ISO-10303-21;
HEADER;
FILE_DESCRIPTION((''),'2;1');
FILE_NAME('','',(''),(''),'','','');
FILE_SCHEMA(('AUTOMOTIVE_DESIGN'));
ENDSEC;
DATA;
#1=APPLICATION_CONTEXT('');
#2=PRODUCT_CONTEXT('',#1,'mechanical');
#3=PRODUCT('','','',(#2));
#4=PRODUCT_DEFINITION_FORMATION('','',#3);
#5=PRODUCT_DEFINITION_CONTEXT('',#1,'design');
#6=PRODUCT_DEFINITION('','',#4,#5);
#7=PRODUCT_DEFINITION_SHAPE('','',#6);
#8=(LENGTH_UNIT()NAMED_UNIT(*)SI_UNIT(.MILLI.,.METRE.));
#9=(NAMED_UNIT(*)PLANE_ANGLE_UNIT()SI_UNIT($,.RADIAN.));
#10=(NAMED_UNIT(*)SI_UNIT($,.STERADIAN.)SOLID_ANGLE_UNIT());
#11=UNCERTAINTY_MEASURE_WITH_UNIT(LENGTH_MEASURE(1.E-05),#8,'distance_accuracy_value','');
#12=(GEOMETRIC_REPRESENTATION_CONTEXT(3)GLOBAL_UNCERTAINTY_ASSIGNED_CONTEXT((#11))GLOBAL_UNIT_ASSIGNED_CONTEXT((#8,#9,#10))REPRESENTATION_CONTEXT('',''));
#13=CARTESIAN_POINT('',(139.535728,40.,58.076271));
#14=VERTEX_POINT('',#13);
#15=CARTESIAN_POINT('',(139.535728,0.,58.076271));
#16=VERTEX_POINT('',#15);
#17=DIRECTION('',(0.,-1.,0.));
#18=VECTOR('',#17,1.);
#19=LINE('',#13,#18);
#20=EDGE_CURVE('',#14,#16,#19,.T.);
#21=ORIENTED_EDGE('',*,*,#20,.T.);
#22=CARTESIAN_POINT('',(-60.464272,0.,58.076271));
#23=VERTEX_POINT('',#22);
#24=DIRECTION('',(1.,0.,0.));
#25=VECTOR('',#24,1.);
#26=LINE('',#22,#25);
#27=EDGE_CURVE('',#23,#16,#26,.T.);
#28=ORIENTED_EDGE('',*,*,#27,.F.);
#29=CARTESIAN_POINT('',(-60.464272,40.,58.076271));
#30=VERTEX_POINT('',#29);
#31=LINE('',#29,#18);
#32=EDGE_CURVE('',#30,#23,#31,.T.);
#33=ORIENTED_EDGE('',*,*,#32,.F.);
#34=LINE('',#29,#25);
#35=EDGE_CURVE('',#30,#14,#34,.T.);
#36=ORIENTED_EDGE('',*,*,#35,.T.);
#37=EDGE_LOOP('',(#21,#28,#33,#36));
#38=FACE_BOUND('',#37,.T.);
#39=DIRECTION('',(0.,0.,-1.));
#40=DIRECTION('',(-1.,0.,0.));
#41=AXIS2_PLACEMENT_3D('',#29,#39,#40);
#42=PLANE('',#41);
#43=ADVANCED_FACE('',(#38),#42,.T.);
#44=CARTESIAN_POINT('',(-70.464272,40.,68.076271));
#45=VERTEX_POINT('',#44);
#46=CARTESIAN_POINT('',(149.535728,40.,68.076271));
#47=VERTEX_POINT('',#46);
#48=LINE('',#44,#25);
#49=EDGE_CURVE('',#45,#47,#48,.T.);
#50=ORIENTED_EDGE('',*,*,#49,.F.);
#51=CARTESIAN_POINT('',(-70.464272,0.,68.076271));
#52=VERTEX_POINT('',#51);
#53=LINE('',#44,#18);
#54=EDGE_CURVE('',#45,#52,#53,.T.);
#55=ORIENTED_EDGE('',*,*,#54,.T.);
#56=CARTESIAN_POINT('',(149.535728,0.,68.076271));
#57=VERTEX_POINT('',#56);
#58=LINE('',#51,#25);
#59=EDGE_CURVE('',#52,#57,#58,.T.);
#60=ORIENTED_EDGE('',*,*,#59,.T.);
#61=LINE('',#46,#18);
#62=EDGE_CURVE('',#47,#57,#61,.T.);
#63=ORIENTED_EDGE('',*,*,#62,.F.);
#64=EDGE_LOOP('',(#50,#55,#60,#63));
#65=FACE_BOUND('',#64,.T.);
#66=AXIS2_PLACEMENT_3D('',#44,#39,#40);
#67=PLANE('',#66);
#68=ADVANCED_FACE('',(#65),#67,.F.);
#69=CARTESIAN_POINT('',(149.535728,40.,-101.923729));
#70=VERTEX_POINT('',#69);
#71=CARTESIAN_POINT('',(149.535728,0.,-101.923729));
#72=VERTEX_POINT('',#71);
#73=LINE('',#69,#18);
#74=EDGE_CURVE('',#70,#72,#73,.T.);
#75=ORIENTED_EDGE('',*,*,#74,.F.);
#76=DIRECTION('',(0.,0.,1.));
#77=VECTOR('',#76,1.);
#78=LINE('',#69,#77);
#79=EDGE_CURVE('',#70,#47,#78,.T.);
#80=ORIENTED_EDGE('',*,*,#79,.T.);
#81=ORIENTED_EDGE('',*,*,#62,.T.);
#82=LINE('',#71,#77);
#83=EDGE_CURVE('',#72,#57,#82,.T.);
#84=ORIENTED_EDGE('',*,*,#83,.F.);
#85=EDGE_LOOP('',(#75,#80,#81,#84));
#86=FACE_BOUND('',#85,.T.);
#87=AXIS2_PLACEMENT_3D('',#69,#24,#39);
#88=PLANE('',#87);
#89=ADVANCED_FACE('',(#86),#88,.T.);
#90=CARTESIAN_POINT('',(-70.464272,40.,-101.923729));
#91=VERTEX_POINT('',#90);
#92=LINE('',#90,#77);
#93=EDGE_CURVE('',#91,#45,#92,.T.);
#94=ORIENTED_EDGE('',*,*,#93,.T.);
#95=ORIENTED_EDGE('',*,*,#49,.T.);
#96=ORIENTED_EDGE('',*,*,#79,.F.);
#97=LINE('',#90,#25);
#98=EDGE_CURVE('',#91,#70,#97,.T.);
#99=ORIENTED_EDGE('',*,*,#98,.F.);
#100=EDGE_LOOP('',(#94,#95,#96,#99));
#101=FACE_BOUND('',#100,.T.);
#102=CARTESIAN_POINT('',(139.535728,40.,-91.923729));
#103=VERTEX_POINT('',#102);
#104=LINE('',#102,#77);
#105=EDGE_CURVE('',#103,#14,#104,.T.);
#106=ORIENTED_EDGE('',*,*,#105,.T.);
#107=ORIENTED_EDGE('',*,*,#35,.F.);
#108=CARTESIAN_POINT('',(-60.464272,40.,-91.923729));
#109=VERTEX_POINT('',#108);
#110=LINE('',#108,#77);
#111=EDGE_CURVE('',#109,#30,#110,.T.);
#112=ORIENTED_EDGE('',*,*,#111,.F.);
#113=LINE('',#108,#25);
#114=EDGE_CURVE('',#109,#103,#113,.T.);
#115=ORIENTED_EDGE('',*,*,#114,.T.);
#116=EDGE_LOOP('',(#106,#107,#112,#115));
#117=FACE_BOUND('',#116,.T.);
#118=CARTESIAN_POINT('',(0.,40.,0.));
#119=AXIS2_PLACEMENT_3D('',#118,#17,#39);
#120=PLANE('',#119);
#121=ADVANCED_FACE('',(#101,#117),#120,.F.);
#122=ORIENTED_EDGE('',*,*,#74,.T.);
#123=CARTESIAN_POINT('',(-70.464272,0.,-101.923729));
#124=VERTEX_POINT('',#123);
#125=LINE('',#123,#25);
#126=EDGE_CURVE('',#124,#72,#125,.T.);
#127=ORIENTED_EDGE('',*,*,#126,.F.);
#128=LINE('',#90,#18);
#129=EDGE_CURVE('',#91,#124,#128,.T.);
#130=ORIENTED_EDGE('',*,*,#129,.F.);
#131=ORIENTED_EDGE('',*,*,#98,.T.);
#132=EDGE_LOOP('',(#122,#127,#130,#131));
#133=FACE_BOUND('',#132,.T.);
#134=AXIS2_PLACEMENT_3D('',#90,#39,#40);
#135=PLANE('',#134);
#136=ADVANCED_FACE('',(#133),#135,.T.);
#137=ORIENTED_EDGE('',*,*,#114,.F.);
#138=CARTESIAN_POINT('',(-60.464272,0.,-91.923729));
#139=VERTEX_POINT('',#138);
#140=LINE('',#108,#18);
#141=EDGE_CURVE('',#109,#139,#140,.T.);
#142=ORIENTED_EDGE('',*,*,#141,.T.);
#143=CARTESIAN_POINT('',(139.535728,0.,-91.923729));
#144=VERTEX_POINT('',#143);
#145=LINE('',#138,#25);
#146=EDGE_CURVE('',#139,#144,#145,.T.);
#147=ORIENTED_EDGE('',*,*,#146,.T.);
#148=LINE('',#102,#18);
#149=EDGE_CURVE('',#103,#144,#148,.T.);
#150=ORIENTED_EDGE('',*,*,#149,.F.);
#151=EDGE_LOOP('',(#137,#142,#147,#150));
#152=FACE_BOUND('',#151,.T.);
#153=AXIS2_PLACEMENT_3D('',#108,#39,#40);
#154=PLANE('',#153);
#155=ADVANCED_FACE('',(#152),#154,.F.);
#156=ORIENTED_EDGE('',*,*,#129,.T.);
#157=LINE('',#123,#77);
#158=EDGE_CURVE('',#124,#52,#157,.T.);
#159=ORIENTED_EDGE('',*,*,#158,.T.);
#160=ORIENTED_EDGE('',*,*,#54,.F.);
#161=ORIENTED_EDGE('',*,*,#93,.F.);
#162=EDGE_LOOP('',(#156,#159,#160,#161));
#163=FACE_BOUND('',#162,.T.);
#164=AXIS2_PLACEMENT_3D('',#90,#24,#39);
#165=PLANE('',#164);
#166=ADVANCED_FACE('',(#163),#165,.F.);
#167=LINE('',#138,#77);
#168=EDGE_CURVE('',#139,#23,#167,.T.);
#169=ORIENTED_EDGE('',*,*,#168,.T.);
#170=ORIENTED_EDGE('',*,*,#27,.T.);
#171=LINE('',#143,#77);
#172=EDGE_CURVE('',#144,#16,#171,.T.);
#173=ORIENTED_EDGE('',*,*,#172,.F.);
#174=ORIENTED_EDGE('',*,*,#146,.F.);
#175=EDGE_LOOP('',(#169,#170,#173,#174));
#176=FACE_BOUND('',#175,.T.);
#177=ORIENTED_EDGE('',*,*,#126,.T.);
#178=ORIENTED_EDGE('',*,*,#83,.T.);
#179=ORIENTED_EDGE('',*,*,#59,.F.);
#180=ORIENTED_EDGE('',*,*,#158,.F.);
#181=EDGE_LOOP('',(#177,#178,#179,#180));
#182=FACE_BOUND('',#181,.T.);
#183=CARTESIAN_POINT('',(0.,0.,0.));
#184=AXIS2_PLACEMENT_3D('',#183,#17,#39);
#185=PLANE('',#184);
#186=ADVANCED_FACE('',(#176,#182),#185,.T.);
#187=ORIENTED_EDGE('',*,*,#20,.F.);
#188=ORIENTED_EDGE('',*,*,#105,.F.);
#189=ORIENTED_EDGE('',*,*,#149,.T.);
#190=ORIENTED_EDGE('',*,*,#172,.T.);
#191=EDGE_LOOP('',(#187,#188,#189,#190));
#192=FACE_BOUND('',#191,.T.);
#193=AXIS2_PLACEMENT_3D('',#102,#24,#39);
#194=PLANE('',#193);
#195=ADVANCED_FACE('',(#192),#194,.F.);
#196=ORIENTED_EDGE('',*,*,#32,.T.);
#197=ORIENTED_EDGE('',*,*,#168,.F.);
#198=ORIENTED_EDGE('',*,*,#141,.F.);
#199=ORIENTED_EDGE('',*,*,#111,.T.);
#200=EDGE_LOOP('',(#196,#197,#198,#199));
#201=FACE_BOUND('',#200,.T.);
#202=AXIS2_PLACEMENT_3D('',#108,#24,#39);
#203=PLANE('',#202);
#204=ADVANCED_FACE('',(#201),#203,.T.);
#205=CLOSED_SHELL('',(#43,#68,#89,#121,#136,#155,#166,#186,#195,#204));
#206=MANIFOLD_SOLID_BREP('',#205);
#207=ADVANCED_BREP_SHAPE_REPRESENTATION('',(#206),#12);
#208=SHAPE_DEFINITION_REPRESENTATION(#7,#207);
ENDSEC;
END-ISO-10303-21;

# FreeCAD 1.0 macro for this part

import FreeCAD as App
import Part
import Sketcher

V = App.Vector


def add_polygon(sketch, points):
    """Adds a closed chain of lines whose ends are joined by coincident constraints."""
    first, n = sketch.GeometryCount, len(points)
    for a, b in zip(points, points[1:] + points[:1]):
        sketch.addGeometry(Part.LineSegment(App.Vector(*a, 0), App.Vector(*b, 0)), False)
    for i in range(n):
        sketch.addConstraint(Sketcher.Constraint("Coincident", first + i, 2, first + (i + 1) % n, 1))

doc = App.newDocument("Part")
params = doc.addObject("Spreadsheet::Sheet", "Params")
for row, (alias, value) in enumerate([
    ("sketch1_width", "220 mm"),
    ("sketch1_width2", "200 mm"),
    ("sketch1_height", "170 mm"),
    ("sketch1_height2", "150 mm"),
    ("pad1_length", "40 mm"),
], start=1):
    params.set(f"A{row}", alias)
    params.set(f"B{row}", "=" + value)
    params.setAlias(f"B{row}", alias)

body = doc.addObject("PartDesign::Body", "Body")

# Sketch on XZ plane
sketch1 = doc.addObject("Sketcher::SketchObject", "Sketch")
body.addObject(sketch1)
sketch1.AttachmentSupport = (doc.XZ_Plane, [""])
sketch1.MapMode = "FlatFace"
add_polygon(sketch1, [(-70.464272, -101.923729), (-70.464272, 68.076271), (149.535728, 68.076271), (149.535728, -101.923729)])  # lines 0-3
add_polygon(sketch1, [(139.535728, 58.076271), (-60.464272, 58.076271), (-60.464272, -91.923729), (139.535728, -91.923729)])  # lines 4-7
sketch1.addConstraint(Sketcher.Constraint("Vertical", 0))
sketch1.addConstraint(Sketcher.Constraint("Horizontal", 1))
sketch1.addConstraint(Sketcher.Constraint("Vertical", 2))
sketch1.addConstraint(Sketcher.Constraint("Horizontal", 3))
sketch1.addConstraint(Sketcher.Constraint("Horizontal", 4))
sketch1.addConstraint(Sketcher.Constraint("Vertical", 5))
sketch1.addConstraint(Sketcher.Constraint("Horizontal", 6))
sketch1.addConstraint(Sketcher.Constraint("Vertical", 7))
sketch1.addConstraint(Sketcher.Constraint("DistanceX", 1, 1, 1, 2, 220.0))
sketch1.addConstraint(Sketcher.Constraint("DistanceX", 4, 2, 4, 1, 200.0))
sketch1.addConstraint(Sketcher.Constraint("DistanceY", 0, 1, 0, 2, 170.0))
sketch1.addConstraint(Sketcher.Constraint("DistanceY", 5, 2, 5, 1, 150.0))
sketch1.addConstraint(Sketcher.Constraint("DistanceX", 0, 2, 4, 2, 10.0))
sketch1.addConstraint(Sketcher.Constraint("DistanceY", 4, 2, 0, 2, 10.0))
sketch1.addConstraint(Sketcher.Constraint("DistanceY", -1, 1, 0, 2, 68.076271))
sketch1.addConstraint(Sketcher.Constraint("DistanceX", 0, 2, -1, 1, 70.464272))
sketch1.setExpression("Constraints[16]", "Params.sketch1_width")
sketch1.setExpression("Constraints[17]", "Params.sketch1_width2")
sketch1.setExpression("Constraints[18]", "Params.sketch1_height")
sketch1.setExpression("Constraints[19]", "Params.sketch1_height2")
pad1 = doc.addObject("PartDesign::Pad", "Pad")
body.addObject(pad1)
pad1.Profile = sketch1
pad1.setExpression("Length", "Params.pad1_length")
pad1.Reversed = True

doc.recompute()
